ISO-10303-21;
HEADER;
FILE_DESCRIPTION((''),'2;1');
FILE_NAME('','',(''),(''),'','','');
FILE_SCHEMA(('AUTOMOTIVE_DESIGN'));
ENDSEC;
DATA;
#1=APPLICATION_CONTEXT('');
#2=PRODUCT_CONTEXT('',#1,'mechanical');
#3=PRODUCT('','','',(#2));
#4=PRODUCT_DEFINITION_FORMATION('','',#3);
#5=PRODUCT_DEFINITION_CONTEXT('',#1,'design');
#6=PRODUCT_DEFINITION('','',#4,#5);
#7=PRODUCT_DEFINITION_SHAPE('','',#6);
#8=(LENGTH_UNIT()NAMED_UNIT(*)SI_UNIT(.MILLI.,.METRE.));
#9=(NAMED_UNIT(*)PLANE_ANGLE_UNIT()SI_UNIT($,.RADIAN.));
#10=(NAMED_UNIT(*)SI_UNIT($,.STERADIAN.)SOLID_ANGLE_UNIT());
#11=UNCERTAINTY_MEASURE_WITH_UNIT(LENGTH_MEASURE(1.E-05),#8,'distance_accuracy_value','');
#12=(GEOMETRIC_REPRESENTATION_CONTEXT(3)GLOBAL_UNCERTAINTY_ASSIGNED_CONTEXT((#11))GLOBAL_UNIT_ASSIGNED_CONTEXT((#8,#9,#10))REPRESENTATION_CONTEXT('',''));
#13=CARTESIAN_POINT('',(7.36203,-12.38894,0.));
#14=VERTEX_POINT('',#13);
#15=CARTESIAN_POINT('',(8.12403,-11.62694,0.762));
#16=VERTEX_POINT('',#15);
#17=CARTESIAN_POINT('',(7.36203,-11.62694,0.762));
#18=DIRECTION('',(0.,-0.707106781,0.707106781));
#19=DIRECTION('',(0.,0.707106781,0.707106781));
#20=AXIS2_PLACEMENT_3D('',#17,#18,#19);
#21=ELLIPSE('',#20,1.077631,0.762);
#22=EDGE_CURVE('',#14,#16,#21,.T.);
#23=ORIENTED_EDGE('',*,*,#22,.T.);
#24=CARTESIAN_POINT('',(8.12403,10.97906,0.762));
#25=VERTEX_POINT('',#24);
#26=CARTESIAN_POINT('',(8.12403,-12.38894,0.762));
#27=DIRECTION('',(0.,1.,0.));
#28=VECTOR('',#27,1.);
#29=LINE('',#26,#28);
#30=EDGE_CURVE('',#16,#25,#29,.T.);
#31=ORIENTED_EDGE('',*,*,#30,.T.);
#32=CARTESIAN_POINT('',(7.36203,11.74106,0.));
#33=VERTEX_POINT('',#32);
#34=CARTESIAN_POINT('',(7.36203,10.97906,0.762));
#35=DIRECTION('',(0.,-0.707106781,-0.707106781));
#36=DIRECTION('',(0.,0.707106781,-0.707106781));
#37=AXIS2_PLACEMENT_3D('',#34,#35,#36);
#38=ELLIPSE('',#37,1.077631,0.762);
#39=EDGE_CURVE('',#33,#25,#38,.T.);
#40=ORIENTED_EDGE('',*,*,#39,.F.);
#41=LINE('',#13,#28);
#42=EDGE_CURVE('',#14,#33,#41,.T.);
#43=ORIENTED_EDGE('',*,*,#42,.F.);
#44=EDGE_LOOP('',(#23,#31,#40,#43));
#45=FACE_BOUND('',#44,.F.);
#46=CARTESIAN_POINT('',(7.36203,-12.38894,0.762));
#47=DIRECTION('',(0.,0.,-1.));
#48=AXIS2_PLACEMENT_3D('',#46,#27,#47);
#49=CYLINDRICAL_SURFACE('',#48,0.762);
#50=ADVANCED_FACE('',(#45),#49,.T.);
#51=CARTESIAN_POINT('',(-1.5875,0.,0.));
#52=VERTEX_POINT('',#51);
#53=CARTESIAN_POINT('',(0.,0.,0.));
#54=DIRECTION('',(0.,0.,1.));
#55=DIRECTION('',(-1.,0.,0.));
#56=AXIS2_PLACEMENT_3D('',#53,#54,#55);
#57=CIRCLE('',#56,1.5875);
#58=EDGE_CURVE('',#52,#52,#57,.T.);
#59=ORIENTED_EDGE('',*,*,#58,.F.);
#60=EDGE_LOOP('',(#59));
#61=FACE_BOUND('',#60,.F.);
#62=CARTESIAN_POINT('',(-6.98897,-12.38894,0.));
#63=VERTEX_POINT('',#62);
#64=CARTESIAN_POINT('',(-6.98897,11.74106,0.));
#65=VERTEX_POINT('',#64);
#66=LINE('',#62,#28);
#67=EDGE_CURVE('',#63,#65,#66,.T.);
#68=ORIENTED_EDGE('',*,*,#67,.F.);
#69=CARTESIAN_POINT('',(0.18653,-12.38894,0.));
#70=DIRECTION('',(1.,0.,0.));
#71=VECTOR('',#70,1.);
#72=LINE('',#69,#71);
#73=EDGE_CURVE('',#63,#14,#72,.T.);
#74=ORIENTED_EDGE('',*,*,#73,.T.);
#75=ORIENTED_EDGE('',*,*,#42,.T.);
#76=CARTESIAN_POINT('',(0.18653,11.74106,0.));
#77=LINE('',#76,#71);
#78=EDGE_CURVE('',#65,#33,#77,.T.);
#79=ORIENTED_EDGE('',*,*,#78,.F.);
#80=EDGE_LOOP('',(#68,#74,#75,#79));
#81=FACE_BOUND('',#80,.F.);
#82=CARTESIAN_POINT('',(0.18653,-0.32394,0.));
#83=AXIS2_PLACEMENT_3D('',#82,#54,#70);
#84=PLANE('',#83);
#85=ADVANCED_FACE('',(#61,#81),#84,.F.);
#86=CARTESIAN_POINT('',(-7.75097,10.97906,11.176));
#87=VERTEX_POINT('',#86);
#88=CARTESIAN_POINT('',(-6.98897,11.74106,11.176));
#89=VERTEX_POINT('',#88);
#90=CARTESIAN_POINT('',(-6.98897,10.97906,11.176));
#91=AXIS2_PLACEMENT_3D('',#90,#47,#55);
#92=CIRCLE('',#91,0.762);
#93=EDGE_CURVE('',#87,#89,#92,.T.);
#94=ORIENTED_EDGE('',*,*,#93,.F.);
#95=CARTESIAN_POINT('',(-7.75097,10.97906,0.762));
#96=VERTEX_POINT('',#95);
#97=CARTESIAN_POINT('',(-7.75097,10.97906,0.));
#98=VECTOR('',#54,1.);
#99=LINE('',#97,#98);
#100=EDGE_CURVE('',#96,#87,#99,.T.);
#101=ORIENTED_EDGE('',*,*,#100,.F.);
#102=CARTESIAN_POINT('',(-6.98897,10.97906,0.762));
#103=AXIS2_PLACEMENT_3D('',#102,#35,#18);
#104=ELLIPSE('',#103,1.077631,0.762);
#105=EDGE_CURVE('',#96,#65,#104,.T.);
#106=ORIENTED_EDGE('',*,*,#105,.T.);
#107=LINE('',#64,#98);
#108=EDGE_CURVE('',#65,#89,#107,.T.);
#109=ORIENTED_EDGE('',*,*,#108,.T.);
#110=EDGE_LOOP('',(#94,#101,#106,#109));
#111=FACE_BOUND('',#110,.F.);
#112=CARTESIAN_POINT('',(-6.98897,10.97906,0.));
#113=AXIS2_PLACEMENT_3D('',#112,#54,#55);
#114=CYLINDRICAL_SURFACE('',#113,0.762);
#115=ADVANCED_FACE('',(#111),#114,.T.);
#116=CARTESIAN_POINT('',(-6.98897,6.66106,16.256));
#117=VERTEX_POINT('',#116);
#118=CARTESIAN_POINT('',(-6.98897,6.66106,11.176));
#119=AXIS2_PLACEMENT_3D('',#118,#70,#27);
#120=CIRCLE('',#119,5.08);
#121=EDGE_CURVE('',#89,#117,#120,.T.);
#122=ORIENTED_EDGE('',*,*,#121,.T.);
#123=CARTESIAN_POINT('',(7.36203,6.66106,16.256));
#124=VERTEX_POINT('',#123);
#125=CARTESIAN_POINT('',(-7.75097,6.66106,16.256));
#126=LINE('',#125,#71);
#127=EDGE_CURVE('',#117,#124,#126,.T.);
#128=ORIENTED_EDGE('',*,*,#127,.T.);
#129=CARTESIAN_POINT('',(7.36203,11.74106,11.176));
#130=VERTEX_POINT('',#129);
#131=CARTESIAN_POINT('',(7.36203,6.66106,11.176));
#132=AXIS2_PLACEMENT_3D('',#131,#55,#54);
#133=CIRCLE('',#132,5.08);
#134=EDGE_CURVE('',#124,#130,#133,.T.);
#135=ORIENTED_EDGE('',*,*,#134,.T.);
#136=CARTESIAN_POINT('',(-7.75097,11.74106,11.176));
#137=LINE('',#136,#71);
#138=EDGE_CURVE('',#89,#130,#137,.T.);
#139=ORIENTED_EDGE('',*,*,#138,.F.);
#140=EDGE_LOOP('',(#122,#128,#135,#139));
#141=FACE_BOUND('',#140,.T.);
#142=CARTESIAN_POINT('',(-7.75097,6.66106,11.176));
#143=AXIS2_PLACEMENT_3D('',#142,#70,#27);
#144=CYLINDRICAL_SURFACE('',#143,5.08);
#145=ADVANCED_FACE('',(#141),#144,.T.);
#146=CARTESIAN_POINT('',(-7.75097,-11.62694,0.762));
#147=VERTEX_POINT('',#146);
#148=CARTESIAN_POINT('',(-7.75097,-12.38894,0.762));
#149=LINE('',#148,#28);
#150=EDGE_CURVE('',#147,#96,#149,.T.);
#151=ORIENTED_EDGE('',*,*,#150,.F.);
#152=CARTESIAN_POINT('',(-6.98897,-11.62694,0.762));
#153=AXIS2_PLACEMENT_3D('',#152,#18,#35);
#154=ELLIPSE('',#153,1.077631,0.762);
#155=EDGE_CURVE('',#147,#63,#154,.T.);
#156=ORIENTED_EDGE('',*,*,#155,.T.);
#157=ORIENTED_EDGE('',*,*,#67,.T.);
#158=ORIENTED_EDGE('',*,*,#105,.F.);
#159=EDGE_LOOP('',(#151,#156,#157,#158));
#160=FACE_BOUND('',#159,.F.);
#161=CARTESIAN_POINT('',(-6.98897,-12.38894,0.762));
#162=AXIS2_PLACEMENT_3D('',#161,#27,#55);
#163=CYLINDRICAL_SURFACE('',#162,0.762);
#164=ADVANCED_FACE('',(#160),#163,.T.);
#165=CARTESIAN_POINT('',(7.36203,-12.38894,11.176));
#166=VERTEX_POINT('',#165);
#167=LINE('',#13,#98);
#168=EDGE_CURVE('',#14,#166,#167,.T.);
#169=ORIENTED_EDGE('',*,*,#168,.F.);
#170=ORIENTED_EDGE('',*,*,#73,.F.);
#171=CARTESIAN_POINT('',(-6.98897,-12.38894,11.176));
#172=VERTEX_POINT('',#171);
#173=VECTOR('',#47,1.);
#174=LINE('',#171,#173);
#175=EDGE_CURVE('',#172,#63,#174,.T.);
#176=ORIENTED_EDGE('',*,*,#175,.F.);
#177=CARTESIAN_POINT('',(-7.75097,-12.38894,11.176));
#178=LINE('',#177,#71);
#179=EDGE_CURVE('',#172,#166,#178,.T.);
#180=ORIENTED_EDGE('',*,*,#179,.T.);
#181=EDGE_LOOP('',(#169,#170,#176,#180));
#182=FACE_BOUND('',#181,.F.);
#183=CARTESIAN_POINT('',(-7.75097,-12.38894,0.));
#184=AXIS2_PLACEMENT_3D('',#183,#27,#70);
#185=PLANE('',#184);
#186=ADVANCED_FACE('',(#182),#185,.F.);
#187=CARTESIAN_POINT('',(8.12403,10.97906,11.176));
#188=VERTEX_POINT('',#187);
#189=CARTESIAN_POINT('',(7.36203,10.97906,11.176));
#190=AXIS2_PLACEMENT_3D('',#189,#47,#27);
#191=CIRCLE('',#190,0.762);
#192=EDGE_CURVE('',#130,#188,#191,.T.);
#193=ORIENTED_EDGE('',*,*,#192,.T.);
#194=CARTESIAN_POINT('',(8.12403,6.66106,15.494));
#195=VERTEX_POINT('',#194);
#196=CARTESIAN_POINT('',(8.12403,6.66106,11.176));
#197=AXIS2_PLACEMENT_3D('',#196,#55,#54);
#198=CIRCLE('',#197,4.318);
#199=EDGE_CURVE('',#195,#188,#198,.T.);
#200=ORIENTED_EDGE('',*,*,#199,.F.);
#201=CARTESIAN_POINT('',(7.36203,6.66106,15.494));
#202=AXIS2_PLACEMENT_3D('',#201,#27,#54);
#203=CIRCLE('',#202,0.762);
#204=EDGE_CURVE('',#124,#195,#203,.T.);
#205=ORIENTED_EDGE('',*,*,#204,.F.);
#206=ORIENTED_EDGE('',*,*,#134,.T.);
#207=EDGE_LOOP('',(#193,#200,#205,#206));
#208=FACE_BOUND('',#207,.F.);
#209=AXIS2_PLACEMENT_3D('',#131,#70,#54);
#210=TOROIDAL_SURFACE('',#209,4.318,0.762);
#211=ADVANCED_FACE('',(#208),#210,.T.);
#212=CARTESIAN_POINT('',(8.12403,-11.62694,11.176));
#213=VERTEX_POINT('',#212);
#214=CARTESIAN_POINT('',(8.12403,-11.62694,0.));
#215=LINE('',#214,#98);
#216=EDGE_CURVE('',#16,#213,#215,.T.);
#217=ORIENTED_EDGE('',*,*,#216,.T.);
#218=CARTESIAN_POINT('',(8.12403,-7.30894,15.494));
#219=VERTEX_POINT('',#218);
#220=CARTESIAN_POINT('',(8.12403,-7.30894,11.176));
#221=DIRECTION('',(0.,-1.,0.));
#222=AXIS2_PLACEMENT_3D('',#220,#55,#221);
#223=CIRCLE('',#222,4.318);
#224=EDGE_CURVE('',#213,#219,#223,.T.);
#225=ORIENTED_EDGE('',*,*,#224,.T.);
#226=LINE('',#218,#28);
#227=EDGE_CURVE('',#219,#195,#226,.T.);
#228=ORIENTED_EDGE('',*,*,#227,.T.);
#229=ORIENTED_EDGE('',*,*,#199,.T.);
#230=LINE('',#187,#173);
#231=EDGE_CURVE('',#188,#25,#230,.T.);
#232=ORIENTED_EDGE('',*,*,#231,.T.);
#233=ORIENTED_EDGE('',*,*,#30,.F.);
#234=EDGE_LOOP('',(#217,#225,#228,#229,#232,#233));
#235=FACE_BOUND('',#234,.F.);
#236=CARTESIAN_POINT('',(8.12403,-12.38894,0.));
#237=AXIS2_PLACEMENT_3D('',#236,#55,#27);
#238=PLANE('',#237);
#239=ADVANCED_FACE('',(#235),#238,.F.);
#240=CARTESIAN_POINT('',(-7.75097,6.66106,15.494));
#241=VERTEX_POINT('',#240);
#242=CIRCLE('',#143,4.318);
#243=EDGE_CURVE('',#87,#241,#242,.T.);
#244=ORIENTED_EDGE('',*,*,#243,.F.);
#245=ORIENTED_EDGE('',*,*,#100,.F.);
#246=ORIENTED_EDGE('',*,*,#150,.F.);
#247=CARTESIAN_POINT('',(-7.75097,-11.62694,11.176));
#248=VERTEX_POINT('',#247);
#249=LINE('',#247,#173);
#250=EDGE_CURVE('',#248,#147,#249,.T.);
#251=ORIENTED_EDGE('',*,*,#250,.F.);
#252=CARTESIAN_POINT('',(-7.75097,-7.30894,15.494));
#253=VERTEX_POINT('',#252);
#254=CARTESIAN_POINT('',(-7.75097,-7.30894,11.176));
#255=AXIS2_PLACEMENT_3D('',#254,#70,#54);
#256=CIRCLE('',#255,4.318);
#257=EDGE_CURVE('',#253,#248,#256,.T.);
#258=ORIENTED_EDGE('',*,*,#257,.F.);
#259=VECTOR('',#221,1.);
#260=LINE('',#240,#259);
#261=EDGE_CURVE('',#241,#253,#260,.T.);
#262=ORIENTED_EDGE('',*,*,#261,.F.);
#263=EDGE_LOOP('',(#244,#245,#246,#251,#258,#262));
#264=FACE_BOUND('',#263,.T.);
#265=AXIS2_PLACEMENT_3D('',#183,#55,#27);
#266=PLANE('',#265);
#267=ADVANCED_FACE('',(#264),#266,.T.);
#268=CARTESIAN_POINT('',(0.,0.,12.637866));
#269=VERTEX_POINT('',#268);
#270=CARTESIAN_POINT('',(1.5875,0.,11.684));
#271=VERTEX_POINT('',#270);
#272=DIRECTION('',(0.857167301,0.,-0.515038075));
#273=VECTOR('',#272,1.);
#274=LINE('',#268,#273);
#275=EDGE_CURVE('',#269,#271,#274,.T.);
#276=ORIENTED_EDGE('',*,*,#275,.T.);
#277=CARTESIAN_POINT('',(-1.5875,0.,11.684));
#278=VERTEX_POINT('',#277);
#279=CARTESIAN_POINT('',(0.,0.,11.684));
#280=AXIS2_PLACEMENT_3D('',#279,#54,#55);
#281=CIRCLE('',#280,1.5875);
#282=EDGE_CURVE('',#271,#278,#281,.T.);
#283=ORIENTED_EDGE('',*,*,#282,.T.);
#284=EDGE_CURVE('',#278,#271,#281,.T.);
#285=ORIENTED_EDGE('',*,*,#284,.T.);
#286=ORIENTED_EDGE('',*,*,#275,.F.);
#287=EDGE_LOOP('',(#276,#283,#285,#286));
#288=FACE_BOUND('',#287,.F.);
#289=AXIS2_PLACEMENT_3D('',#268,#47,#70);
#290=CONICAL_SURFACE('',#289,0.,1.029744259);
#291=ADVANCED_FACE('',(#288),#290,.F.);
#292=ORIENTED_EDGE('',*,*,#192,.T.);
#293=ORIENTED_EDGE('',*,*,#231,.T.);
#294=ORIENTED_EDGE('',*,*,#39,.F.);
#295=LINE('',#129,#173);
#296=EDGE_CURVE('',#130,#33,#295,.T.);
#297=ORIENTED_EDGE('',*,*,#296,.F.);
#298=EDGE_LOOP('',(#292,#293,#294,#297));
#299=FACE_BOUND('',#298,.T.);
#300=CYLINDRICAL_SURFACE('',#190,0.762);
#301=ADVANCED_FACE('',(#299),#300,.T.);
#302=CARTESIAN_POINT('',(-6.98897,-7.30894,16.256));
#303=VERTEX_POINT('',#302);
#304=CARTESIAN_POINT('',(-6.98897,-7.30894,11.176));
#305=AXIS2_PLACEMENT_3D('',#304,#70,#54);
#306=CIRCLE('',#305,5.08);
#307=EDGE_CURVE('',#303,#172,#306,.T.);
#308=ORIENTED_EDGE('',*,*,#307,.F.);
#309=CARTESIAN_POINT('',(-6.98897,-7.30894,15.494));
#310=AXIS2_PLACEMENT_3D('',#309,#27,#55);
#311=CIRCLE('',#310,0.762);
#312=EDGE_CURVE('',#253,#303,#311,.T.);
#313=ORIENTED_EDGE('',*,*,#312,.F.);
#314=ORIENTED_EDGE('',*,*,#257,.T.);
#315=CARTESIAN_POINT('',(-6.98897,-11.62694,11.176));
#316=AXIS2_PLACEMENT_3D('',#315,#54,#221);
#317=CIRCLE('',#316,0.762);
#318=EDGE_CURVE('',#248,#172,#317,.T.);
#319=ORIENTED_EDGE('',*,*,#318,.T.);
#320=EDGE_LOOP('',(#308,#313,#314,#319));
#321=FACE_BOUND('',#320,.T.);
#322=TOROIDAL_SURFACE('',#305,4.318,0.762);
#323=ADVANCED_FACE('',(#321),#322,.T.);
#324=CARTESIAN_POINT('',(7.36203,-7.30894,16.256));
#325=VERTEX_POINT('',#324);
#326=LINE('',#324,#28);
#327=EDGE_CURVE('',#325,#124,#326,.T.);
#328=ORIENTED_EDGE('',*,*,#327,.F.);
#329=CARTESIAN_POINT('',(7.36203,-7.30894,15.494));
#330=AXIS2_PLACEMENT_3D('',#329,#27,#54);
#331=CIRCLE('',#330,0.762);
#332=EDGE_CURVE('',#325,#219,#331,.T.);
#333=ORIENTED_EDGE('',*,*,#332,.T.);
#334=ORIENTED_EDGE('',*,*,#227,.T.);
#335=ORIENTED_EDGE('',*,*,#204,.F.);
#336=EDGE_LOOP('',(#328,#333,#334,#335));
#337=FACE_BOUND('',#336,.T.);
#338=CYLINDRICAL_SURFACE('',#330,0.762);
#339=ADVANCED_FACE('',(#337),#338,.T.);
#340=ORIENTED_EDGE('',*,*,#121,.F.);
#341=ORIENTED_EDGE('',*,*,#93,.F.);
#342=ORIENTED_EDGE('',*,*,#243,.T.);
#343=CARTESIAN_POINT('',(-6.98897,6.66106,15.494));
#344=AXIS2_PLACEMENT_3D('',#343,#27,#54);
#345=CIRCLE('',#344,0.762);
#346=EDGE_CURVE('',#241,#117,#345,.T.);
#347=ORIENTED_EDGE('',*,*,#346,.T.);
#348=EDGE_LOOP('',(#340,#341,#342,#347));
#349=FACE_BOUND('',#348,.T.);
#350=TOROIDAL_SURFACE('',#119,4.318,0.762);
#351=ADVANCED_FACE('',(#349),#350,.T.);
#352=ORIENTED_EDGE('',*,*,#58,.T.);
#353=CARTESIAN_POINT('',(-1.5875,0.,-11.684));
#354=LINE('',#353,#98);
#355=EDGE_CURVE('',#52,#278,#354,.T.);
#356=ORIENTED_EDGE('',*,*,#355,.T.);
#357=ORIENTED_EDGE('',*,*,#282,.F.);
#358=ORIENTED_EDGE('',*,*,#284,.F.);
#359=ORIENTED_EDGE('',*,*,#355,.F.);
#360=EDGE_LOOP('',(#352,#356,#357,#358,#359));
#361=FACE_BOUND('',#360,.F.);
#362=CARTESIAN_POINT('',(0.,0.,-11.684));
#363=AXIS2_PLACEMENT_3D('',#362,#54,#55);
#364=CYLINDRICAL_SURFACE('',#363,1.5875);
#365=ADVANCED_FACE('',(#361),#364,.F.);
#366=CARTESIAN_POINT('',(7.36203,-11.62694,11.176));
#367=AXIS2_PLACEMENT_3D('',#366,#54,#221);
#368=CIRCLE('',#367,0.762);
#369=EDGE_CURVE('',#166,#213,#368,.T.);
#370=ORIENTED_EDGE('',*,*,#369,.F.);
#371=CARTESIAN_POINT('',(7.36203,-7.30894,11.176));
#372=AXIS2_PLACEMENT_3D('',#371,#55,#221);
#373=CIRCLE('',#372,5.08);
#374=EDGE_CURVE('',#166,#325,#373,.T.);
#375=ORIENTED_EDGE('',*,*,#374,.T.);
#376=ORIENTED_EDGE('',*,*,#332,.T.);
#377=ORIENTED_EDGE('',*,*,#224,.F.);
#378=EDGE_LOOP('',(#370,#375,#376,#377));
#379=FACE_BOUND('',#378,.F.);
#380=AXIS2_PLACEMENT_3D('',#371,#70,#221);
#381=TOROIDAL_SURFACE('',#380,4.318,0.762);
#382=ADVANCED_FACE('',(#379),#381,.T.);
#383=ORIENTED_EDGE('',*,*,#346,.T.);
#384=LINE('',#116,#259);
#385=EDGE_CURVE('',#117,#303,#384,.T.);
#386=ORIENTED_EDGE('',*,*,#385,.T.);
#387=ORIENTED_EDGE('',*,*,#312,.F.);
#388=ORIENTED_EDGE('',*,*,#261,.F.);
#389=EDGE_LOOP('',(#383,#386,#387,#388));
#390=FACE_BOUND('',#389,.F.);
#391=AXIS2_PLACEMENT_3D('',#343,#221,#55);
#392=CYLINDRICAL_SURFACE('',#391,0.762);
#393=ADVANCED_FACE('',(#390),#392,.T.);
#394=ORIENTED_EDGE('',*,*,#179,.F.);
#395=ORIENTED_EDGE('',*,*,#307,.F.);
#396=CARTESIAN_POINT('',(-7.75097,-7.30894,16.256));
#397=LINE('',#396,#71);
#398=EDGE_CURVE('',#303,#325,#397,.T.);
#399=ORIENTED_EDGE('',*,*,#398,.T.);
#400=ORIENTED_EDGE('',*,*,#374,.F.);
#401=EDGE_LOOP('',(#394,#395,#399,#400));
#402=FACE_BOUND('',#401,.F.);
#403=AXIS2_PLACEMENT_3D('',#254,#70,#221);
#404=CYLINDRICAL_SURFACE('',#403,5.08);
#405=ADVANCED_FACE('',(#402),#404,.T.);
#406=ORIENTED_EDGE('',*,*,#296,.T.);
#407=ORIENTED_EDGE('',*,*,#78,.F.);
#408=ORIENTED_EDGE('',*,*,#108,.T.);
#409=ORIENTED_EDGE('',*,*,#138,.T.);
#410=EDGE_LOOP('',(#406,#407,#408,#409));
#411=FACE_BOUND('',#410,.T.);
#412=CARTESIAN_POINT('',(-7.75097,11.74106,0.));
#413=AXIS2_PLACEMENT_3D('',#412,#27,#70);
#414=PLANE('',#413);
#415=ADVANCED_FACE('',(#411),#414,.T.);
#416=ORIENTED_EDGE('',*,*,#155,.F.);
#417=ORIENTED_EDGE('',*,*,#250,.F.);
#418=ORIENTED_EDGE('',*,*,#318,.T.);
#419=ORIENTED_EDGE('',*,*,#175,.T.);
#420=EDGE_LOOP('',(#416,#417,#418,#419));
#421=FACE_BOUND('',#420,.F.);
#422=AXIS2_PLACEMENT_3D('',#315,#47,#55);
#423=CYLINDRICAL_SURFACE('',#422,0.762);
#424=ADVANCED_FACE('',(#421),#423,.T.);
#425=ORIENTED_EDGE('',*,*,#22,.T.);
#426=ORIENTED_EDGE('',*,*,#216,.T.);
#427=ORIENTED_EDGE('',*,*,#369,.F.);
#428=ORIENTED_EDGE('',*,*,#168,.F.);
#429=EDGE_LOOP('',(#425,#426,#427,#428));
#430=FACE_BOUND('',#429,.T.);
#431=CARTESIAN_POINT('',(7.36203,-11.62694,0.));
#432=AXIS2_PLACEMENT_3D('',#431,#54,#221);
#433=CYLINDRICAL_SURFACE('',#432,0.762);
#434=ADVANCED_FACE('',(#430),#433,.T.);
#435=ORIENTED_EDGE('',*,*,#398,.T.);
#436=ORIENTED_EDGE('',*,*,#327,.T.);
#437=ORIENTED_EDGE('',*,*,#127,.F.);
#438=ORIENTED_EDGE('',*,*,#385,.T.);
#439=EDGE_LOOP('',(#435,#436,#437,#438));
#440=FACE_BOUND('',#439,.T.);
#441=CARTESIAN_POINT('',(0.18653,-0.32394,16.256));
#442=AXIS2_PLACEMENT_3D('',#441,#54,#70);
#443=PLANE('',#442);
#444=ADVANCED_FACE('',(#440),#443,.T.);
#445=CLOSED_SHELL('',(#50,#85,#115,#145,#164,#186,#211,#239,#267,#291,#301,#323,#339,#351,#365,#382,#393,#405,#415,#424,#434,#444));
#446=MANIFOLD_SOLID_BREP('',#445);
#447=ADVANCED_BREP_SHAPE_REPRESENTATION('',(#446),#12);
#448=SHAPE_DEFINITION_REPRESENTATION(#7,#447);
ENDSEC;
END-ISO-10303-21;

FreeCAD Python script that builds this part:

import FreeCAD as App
import Part
import Sketcher
Q = App.Units.Quantity


def edges_at(feature, points):
    """Names of the edges that pass closest to the given points."""
    edges = feature.Shape.Edges
    near = lambda p: min(range(len(edges)), key=lambda i: edges[i].distToShape(Part.Vertex(*p))[0])
    return sorted({f"Edge{near(p) + 1}" for p in points})


def add_polygon(sketch, points):
    """Adds a closed chain of lines whose ends are joined by coincident constraints."""
    first, n = sketch.GeometryCount, len(points)
    for a, b in zip(points, points[1:] + points[:1]):
        sketch.addGeometry(Part.LineSegment(App.Vector(*a, 0), App.Vector(*b, 0)), False)
    for i in range(n):
        sketch.addConstraint(Sketcher.Constraint("Coincident", first + i, 2, first + (i + 1) % n, 1))

doc = App.newDocument("Part")
body = doc.addObject("PartDesign::Body", "Body")

sketch1 = body.newObject("Sketcher::SketchObject", "Sketch")
sketch1.AttachmentSupport = (doc.getObject("XY_Plane"), [""])
sketch1.MapMode = "FlatFace"
add_polygon(sketch1, [(-8, 12), (-8, -12), (8, -12), (8, 12)])
sketch1.addConstraint([
    Sketcher.Constraint("Vertical", 0),
    Sketcher.Constraint("Horizontal", 1),
    Sketcher.Constraint("Vertical", 2),
    Sketcher.Constraint("Horizontal", 3),
    Sketcher.Constraint("DistanceY", 0, 2, 0, 1, Q("0.95 in")),
    Sketcher.Constraint("DistanceX", 1, 1, 1, 2, Q("0.625 in")),
    Sketcher.Constraint("DistanceX", 0, 2, -1, 1, Q("7.75097 mm")),
    Sketcher.Constraint("DistanceY", 0, 2, -1, 1, Q("12.38894 mm")),
])
pad1 = body.newObject("PartDesign::Pad", "Pad")
pad1.Profile = sketch1
pad1.Length = Q("0.64 in")

sketch2 = body.newObject("Sketcher::SketchObject", "Sketch001")
sketch2.AttachmentSupport = (doc.getObject("XY_Plane"), [""])
sketch2.MapMode = "FlatFace"
sketch2.addGeometry(Part.Circle(App.Vector(0, 0, 0), App.Vector(0, 0, 1), 1.6), False)
sketch2.addConstraint([
    Sketcher.Constraint("Coincident", 0, 3, -1, 1),
    Sketcher.Constraint("Diameter", 0, Q("0.125 in")),
])
doc.recompute()
hole = body.newObject("PartDesign::Hole", "Hole")
hole.Profile = sketch2
hole.ThreadType = "None"
hole.Diameter = Q("0.125 in")
hole.DepthType = "Dimension"
hole.Depth = Q("0.46 in")
hole.DrillPoint = "Angled"
hole.DrillPointAngle = 118
hole.Reversed = True
doc.recompute()

fillet = body.newObject("PartDesign::Fillet", "Fillet")
fillet.Base = (hole, edges_at(hole, [(0.187, -12.389, 16.256), (0.187, 11.741, 16.256)]))
fillet.Radius = Q("0.2 in")
doc.recompute()

fillet2 = body.newObject("PartDesign::Fillet", "Fillet001")
fillet2.Base = (fillet, edges_at(fillet, [
    (8.124, -12.389, 5.588),
    (8.124, -10.901, 14.768),
    (8.124, -0.324, 0),
    (8.124, -0.324, 16.256),
    (8.124, 11.741, 5.588),
    (8.124, 10.253, 14.768),
    (-7.751, 11.741, 5.588),
    (-7.751, 10.253, 14.768),
    (-7.751, -0.324, 0),
    (-7.751, -0.324, 16.256),
    (-7.751, -12.389, 5.588),
    (-7.751, -10.901, 14.768),
]))
fillet2.Radius = Q("0.03 in")

doc.recompute()
